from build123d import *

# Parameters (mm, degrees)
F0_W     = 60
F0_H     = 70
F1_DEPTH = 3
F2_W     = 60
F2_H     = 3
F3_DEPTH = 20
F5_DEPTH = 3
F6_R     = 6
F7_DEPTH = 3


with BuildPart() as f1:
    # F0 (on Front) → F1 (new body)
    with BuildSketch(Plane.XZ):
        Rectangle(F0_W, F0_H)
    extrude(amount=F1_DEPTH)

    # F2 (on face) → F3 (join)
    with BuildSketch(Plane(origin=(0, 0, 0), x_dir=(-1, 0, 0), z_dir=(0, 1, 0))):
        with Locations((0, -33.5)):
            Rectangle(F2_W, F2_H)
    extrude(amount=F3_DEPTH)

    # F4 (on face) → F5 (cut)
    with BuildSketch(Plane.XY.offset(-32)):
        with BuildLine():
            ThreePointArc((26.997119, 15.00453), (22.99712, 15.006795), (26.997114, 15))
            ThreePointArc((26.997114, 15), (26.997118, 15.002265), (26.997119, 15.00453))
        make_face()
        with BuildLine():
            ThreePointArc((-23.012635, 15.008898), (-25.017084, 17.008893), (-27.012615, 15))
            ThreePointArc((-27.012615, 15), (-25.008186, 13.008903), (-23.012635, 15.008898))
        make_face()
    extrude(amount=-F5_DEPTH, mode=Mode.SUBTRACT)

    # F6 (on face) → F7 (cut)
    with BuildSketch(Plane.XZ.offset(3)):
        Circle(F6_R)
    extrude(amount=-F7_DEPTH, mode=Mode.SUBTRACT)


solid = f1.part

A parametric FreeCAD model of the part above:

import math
import FreeCAD as App
import Part
import Sketcher

V = App.Vector


def add_polygon(sketch, points):
    """Adds a closed chain of lines whose ends are joined by coincident constraints."""
    first, n = sketch.GeometryCount, len(points)
    for a, b in zip(points, points[1:] + points[:1]):
        sketch.addGeometry(Part.LineSegment(App.Vector(*a, 0), App.Vector(*b, 0)), False)
    for i in range(n):
        sketch.addConstraint(Sketcher.Constraint("Coincident", first + i, 2, first + (i + 1) % n, 1))

doc = App.newDocument("Part")
body = doc.addObject("PartDesign::Body", "Body")

sketch1 = body.newObject("Sketcher::SketchObject", "Sketch")
sketch1.AttachmentSupport = (doc.getObject("XZ_Plane"), [""])
sketch1.MapMode = "FlatFace"
add_polygon(sketch1, [(-30, 35), (-30, -35), (30, -35), (30, 35)])
sketch1.addConstraint([
    Sketcher.Constraint("Vertical", 0),
    Sketcher.Constraint("Horizontal", 1),
    Sketcher.Constraint("Vertical", 2),
    Sketcher.Constraint("Horizontal", 3),
    Sketcher.Constraint("Symmetric", 0, 2, 2, 2, -1, 1),
    Sketcher.Constraint("DistanceX", 1, 1, 1, 2, 60.0),
    Sketcher.Constraint("DistanceY", 0, 2, 0, 1, 70.0),
])
pad1 = body.newObject("PartDesign::Pad", "Pad")
pad1.Profile = sketch1
pad1.Length = 3

sketch2 = body.newObject("Sketcher::SketchObject", "Sketch001")
sketch2.AttachmentSupport = (doc.getObject("XZ_Plane"), [""])
sketch2.MapMode = "FlatFace"
add_polygon(sketch2, [(30, -32), (30, -35), (-30, -35), (-30, -32)])
sketch2.addConstraint([
    Sketcher.Constraint("Vertical", 0),
    Sketcher.Constraint("Horizontal", 1),
    Sketcher.Constraint("Vertical", 2),
    Sketcher.Constraint("Horizontal", 3),
    Sketcher.Constraint("DistanceX", 1, 2, 1, 1, 60.0),
    Sketcher.Constraint("DistanceY", 0, 2, 0, 1, 3.0),
    Sketcher.Constraint("DistanceX", -1, 1, 0, 2, 30.0),
    Sketcher.Constraint("DistanceY", 0, 2, -1, 1, 35.0),
])
pad2 = body.newObject("PartDesign::Pad", "Pad001")
pad2.Profile = sketch2
pad2.Length = 20
pad2.Reversed = True

sketch3 = body.newObject("Sketcher::SketchObject", "Sketch002")
sketch3.AttachmentSupport = (doc.getObject("XY_Plane"), [""])
sketch3.MapMode = "FlatFace"
sketch3.AttachmentOffset = App.Placement(V(0, 0, -32), App.Rotation())
sketch3.addGeometry([
    Part.ArcOfCircle(Part.Circle(V(24.997119, 15.004473, 0), V(0, 0, 1), 2), math.radians(0.001647), math.radians(359.871872)),
    Part.ArcOfCircle(Part.Circle(V(25.28704, 15.004153, 0), V(0, 0, 1), 1.710079), math.radians(-0.139129), math.radians(0.012648)),
    Part.ArcOfCircle(Part.Circle(V(-25.012635, 15.008898, 0), V(0, 0, 1), 2), math.radians(-0.000001), math.radians(180.254911)),
    Part.ArcOfCircle(Part.Circle(V(-25.012635, 15.008898, 0), V(0, 0, 1), 2), math.radians(-179.745092), math.radians(0.000001)),
], False)
sketch3.addConstraint([
    Sketcher.Constraint("Coincident", 0, 1, 1, 2),
    Sketcher.Constraint("Coincident", 1, 1, 0, 2),
    Sketcher.Constraint("Tangent", 2, 1, 3, 2),
    Sketcher.Constraint("Coincident", 3, 1, 2, 2),
    Sketcher.Constraint("Equal", 0, 2),
    Sketcher.Constraint("Horizontal", 3, 3, 2, 1),
    Sketcher.Constraint("Horizontal", 1, 1, 3, 1),
    Sketcher.Constraint("Radius", 0, 2.0),
    Sketcher.Constraint("DistanceY", -1, 1, 1, 1, 15.0),
    Sketcher.Constraint("Radius", 1, 1.710079),
    Sketcher.Constraint("DistanceY", -1, 1, 2, 3, 15.008898),
    Sketcher.Constraint("DistanceX", -1, 1, 0, 3, 24.997119),
    Sketcher.Constraint("DistanceY", -1, 1, 0, 1, 15.00453),
    Sketcher.Constraint("DistanceY", 1, 3, 0, 3, 0.00032),
    Sketcher.Constraint("DistanceX", 3, 3, 1, 1, 52.009749),
])
pocket1 = body.newObject("PartDesign::Pocket", "Pocket")
pocket1.Profile = sketch3
pocket1.Length = 3

sketch4 = body.newObject("Sketcher::SketchObject", "Sketch003")
sketch4.AttachmentSupport = (doc.getObject("XZ_Plane"), [""])
sketch4.MapMode = "FlatFace"
sketch4.AttachmentOffset = App.Placement(V(0, 0, 3), App.Rotation())
sketch4.addGeometry(Part.Circle(V(0, 0, 0), V(0, 0, 1), 6), False)
sketch4.addConstraint([
    Sketcher.Constraint("Coincident", 0, 3, -1, 1),
    Sketcher.Constraint("Diameter", 0, 12.0),
])
pocket2 = body.newObject("PartDesign::Pocket", "Pocket001")
pocket2.Profile = sketch4
pocket2.Length = 3

doc.recompute()
